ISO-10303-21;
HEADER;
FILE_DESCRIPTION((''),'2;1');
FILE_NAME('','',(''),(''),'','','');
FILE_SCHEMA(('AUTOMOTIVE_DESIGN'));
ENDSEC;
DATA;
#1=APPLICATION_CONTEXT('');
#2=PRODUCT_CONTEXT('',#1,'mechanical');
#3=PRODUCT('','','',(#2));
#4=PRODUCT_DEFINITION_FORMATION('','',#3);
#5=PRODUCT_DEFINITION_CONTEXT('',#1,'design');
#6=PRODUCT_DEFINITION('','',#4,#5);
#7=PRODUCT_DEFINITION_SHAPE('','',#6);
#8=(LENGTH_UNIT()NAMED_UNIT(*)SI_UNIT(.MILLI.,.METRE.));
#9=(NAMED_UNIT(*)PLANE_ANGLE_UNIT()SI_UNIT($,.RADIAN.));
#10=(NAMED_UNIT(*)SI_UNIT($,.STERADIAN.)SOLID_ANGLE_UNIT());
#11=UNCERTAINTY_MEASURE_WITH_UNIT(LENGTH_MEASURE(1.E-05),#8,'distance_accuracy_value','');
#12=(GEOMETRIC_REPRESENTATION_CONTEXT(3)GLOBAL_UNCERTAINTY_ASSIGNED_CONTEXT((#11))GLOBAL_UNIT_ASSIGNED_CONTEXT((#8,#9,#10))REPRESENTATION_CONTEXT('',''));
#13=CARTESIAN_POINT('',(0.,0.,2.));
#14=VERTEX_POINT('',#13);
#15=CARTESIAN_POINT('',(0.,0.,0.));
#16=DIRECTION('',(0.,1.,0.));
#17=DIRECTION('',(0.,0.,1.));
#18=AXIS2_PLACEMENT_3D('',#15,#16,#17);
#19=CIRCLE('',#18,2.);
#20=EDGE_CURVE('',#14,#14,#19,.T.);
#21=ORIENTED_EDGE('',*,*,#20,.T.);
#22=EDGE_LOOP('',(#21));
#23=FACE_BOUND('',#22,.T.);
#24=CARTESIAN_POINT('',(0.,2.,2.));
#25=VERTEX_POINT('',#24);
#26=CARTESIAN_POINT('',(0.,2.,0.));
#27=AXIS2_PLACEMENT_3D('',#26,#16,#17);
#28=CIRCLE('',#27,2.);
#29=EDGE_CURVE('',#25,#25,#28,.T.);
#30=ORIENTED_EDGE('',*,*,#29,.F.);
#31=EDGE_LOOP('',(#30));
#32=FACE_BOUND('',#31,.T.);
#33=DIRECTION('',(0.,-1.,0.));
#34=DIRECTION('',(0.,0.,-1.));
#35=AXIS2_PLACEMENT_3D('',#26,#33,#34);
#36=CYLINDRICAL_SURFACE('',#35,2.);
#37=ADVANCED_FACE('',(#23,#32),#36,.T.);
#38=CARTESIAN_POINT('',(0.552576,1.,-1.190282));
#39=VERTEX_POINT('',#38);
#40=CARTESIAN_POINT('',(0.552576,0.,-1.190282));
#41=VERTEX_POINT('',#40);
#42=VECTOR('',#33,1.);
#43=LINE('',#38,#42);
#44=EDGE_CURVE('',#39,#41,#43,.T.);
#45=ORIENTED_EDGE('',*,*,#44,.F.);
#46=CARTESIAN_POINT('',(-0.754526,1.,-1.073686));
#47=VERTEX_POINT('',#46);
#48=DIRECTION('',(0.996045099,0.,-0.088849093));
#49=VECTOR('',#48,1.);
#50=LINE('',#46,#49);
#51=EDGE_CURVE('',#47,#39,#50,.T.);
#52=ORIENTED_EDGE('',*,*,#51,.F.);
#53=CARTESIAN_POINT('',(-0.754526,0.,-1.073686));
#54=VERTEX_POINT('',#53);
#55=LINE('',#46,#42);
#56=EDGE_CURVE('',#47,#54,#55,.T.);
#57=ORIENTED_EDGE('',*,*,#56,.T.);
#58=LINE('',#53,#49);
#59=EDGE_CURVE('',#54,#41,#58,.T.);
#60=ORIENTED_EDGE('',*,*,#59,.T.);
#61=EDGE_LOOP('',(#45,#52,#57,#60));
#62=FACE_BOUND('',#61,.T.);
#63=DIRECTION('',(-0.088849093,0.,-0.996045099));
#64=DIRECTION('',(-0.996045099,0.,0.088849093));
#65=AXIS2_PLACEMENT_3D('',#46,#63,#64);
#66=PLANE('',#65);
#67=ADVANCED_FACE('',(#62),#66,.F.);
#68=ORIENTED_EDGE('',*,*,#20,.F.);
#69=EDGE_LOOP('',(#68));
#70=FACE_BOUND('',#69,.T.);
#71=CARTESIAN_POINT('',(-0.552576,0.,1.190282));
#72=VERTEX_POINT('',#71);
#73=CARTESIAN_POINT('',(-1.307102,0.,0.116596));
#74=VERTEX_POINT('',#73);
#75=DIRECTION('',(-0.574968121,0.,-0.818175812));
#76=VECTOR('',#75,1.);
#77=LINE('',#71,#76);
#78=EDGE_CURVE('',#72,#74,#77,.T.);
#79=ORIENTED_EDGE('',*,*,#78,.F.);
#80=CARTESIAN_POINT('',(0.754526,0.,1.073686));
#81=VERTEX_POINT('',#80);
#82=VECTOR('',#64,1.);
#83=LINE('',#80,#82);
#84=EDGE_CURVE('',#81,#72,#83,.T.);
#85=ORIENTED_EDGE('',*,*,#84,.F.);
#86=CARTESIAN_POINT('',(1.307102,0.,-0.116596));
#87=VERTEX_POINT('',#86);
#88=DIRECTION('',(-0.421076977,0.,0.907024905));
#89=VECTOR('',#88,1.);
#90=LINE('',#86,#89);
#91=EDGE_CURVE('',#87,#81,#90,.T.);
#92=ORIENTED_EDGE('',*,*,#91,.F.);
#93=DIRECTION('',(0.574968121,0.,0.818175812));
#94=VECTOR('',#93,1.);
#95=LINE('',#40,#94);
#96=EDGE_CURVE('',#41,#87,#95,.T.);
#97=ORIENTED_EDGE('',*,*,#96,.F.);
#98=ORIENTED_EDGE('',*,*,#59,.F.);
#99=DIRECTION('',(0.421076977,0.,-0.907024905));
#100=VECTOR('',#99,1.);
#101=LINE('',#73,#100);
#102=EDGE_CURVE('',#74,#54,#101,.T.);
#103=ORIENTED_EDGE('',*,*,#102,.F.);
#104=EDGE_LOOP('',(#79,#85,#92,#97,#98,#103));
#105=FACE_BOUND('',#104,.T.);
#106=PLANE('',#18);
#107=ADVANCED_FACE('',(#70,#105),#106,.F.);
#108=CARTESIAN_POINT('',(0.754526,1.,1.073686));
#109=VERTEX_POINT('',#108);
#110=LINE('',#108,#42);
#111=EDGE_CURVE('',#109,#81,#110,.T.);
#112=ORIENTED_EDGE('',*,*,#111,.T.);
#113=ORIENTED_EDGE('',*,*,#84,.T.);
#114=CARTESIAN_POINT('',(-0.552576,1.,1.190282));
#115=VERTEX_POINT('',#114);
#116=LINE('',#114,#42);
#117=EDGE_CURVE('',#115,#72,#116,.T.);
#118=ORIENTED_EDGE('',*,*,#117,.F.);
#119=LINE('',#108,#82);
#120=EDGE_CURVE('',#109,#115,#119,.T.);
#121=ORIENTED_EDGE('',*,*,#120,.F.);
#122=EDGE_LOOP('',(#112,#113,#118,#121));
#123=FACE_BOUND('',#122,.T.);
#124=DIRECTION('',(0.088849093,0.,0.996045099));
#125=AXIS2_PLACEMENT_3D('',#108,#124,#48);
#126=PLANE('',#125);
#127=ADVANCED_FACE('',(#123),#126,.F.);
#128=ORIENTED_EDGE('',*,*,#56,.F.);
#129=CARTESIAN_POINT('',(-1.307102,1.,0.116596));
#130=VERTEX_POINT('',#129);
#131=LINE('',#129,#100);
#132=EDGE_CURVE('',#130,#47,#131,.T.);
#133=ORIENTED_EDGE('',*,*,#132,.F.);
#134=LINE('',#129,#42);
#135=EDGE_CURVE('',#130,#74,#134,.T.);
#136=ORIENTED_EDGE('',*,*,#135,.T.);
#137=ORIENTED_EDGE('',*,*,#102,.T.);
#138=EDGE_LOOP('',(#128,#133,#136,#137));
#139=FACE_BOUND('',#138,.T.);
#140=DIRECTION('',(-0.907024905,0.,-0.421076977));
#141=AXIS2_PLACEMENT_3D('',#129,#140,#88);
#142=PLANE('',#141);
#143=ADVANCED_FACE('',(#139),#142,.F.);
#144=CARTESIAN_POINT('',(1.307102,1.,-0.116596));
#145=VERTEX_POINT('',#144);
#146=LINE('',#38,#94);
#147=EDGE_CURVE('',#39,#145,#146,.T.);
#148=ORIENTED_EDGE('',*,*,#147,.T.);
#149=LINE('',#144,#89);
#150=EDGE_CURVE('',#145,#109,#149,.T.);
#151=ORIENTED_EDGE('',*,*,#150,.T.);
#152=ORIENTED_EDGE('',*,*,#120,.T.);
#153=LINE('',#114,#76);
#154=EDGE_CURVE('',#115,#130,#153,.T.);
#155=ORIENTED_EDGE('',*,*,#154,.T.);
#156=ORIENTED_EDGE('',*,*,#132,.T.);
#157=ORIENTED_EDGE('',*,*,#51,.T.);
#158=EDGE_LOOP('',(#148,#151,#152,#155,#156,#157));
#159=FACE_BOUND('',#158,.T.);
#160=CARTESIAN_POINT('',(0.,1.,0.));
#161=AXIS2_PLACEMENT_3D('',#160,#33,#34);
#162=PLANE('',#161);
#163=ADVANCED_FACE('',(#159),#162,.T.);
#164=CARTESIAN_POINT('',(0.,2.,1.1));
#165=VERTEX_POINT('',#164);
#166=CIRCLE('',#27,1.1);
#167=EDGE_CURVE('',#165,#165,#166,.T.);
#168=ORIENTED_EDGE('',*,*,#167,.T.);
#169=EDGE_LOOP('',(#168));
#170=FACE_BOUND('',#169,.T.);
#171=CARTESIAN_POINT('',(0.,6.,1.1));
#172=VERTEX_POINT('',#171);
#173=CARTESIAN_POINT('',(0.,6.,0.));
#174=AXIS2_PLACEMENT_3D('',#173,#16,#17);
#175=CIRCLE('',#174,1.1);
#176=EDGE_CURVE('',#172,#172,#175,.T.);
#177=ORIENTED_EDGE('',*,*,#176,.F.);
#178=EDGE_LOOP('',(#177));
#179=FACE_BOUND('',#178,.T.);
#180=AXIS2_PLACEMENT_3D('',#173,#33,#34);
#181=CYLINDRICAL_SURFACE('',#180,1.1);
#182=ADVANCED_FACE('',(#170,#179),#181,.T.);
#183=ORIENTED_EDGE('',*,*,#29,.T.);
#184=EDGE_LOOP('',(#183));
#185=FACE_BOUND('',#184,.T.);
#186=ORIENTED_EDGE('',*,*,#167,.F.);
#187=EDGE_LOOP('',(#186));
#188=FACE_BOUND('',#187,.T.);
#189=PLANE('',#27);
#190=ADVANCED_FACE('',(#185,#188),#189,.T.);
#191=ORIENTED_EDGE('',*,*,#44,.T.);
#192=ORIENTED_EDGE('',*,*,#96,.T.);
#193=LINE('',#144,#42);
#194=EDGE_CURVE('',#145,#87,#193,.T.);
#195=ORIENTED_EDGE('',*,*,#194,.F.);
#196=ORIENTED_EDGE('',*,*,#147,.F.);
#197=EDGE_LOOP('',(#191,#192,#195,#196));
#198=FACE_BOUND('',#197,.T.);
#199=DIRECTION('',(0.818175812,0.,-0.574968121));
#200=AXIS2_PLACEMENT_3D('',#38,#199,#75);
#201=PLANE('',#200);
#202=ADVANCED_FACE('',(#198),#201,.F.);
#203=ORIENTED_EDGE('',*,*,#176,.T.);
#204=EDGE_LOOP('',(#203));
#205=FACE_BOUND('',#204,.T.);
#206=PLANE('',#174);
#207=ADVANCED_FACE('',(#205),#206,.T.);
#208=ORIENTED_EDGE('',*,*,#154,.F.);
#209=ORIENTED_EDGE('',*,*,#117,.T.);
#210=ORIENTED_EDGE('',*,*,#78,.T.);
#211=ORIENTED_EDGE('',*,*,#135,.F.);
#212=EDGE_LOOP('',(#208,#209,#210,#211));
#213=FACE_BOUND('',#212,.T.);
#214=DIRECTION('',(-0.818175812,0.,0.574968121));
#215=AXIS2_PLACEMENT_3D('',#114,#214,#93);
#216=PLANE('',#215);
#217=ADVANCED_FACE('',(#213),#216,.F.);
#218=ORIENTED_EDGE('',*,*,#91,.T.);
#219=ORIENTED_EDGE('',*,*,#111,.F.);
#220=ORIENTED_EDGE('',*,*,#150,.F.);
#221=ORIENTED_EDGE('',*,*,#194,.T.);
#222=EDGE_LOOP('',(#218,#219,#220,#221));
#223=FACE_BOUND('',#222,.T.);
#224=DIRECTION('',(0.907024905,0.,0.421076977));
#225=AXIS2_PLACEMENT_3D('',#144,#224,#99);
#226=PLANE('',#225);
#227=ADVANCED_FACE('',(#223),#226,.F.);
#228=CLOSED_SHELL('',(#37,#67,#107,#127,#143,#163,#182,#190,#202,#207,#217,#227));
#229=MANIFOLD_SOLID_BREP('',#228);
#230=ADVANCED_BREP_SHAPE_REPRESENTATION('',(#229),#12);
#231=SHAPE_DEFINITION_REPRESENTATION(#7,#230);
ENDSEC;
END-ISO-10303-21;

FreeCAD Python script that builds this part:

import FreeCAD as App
import Part
import Sketcher

doc = App.newDocument("Part")
body = doc.addObject("PartDesign::Body", "Body")

sketch1 = body.newObject("Sketcher::SketchObject", "Sketch")
sketch1.AttachmentSupport = (doc.getObject("XZ_Plane"), [""])
sketch1.MapMode = "FlatFace"
sketch1.addGeometry(Part.Circle(App.Vector(0, 0, 0), App.Vector(0, 0, 1), 2), False)
sketch1.addConstraint([
    Sketcher.Constraint("Coincident", 0, 3, -1, 1),
    Sketcher.Constraint("Diameter", 0, 4.0),
])
pad1 = body.newObject("PartDesign::Pad", "Pad")
pad1.Profile = sketch1
pad1.Length = 2
pad1.Reversed = True

sketch2 = body.newObject("Sketcher::SketchObject", "Sketch001")
sketch2.AttachmentSupport = (doc.getObject("XZ_Plane"), [""])
sketch2.MapMode = "FlatFace"
sketch2.addGeometry([
    Part.LineSegment(App.Vector(1.3, -0.1, 0), App.Vector(0.8, 1.1, 0)),
    Part.LineSegment(App.Vector(0.8, 1.1, 0), App.Vector(-0.6, 1.2, 0)),
    Part.LineSegment(App.Vector(-0.6, 1.2, 0), App.Vector(-1.3, 0.1, 0)),
    Part.LineSegment(App.Vector(-1.3, 0.1, 0), App.Vector(-0.8, -1.1, 0)),
    Part.LineSegment(App.Vector(-0.8, -1.1, 0), App.Vector(0.6, -1.2, 0)),
    Part.LineSegment(App.Vector(0.6, -1.2, 0), App.Vector(1.3, -0.1, 0)),
], False)
sketch2.addConstraint([
    Sketcher.Constraint("Coincident", 0, 2, 1, 1),
    Sketcher.Constraint("Coincident", 1, 2, 2, 1),
    Sketcher.Constraint("Coincident", 2, 2, 3, 1),
    Sketcher.Constraint("Coincident", 3, 2, 4, 1),
    Sketcher.Constraint("Coincident", 4, 2, 5, 1),
    Sketcher.Constraint("Coincident", 5, 2, 0, 1),
    Sketcher.Constraint("Symmetric", 0, 2, 3, 2, -1, 1),
    Sketcher.Constraint("Symmetric", 1, 2, 4, 2, -1, 1),
    Sketcher.Constraint("Symmetric", 2, 2, 5, 2, -1, 1),
    Sketcher.Constraint("Equal", 0, 1),
    Sketcher.Constraint("Equal", 1, 2),
    Sketcher.Constraint("DistanceY", -1, 1, 1, 2, 1.190282),
    Sketcher.Constraint("DistanceX", 2, 2, 0, 2, 2.061628),
    Sketcher.Constraint("DistanceY", 2, 2, 0, 2, 0.95709),
    Sketcher.Constraint("DistanceY", 3, 2, 2, 2, 1.190282),
])
pocket1 = body.newObject("PartDesign::Pocket", "Pocket")
pocket1.Profile = sketch2
pocket1.Length = 1

sketch3 = body.newObject("Sketcher::SketchObject", "Sketch002")
sketch3.AttachmentSupport = (doc.getObject("XZ_Plane"), [""])
sketch3.MapMode = "FlatFace"
sketch3.AttachmentOffset = App.Placement(App.Vector(0, 0, -2), App.Rotation())
sketch3.addGeometry(Part.Circle(App.Vector(0, 0, 0), App.Vector(0, 0, 1), 1.1), False)
sketch3.addConstraint([
    Sketcher.Constraint("Coincident", 0, 3, -1, 1),
    Sketcher.Constraint("Diameter", 0, 2.2),
])
pad2 = body.newObject("PartDesign::Pad", "Pad001")
pad2.Profile = sketch3
pad2.Length = 4
pad2.Reversed = True

doc.recompute()
